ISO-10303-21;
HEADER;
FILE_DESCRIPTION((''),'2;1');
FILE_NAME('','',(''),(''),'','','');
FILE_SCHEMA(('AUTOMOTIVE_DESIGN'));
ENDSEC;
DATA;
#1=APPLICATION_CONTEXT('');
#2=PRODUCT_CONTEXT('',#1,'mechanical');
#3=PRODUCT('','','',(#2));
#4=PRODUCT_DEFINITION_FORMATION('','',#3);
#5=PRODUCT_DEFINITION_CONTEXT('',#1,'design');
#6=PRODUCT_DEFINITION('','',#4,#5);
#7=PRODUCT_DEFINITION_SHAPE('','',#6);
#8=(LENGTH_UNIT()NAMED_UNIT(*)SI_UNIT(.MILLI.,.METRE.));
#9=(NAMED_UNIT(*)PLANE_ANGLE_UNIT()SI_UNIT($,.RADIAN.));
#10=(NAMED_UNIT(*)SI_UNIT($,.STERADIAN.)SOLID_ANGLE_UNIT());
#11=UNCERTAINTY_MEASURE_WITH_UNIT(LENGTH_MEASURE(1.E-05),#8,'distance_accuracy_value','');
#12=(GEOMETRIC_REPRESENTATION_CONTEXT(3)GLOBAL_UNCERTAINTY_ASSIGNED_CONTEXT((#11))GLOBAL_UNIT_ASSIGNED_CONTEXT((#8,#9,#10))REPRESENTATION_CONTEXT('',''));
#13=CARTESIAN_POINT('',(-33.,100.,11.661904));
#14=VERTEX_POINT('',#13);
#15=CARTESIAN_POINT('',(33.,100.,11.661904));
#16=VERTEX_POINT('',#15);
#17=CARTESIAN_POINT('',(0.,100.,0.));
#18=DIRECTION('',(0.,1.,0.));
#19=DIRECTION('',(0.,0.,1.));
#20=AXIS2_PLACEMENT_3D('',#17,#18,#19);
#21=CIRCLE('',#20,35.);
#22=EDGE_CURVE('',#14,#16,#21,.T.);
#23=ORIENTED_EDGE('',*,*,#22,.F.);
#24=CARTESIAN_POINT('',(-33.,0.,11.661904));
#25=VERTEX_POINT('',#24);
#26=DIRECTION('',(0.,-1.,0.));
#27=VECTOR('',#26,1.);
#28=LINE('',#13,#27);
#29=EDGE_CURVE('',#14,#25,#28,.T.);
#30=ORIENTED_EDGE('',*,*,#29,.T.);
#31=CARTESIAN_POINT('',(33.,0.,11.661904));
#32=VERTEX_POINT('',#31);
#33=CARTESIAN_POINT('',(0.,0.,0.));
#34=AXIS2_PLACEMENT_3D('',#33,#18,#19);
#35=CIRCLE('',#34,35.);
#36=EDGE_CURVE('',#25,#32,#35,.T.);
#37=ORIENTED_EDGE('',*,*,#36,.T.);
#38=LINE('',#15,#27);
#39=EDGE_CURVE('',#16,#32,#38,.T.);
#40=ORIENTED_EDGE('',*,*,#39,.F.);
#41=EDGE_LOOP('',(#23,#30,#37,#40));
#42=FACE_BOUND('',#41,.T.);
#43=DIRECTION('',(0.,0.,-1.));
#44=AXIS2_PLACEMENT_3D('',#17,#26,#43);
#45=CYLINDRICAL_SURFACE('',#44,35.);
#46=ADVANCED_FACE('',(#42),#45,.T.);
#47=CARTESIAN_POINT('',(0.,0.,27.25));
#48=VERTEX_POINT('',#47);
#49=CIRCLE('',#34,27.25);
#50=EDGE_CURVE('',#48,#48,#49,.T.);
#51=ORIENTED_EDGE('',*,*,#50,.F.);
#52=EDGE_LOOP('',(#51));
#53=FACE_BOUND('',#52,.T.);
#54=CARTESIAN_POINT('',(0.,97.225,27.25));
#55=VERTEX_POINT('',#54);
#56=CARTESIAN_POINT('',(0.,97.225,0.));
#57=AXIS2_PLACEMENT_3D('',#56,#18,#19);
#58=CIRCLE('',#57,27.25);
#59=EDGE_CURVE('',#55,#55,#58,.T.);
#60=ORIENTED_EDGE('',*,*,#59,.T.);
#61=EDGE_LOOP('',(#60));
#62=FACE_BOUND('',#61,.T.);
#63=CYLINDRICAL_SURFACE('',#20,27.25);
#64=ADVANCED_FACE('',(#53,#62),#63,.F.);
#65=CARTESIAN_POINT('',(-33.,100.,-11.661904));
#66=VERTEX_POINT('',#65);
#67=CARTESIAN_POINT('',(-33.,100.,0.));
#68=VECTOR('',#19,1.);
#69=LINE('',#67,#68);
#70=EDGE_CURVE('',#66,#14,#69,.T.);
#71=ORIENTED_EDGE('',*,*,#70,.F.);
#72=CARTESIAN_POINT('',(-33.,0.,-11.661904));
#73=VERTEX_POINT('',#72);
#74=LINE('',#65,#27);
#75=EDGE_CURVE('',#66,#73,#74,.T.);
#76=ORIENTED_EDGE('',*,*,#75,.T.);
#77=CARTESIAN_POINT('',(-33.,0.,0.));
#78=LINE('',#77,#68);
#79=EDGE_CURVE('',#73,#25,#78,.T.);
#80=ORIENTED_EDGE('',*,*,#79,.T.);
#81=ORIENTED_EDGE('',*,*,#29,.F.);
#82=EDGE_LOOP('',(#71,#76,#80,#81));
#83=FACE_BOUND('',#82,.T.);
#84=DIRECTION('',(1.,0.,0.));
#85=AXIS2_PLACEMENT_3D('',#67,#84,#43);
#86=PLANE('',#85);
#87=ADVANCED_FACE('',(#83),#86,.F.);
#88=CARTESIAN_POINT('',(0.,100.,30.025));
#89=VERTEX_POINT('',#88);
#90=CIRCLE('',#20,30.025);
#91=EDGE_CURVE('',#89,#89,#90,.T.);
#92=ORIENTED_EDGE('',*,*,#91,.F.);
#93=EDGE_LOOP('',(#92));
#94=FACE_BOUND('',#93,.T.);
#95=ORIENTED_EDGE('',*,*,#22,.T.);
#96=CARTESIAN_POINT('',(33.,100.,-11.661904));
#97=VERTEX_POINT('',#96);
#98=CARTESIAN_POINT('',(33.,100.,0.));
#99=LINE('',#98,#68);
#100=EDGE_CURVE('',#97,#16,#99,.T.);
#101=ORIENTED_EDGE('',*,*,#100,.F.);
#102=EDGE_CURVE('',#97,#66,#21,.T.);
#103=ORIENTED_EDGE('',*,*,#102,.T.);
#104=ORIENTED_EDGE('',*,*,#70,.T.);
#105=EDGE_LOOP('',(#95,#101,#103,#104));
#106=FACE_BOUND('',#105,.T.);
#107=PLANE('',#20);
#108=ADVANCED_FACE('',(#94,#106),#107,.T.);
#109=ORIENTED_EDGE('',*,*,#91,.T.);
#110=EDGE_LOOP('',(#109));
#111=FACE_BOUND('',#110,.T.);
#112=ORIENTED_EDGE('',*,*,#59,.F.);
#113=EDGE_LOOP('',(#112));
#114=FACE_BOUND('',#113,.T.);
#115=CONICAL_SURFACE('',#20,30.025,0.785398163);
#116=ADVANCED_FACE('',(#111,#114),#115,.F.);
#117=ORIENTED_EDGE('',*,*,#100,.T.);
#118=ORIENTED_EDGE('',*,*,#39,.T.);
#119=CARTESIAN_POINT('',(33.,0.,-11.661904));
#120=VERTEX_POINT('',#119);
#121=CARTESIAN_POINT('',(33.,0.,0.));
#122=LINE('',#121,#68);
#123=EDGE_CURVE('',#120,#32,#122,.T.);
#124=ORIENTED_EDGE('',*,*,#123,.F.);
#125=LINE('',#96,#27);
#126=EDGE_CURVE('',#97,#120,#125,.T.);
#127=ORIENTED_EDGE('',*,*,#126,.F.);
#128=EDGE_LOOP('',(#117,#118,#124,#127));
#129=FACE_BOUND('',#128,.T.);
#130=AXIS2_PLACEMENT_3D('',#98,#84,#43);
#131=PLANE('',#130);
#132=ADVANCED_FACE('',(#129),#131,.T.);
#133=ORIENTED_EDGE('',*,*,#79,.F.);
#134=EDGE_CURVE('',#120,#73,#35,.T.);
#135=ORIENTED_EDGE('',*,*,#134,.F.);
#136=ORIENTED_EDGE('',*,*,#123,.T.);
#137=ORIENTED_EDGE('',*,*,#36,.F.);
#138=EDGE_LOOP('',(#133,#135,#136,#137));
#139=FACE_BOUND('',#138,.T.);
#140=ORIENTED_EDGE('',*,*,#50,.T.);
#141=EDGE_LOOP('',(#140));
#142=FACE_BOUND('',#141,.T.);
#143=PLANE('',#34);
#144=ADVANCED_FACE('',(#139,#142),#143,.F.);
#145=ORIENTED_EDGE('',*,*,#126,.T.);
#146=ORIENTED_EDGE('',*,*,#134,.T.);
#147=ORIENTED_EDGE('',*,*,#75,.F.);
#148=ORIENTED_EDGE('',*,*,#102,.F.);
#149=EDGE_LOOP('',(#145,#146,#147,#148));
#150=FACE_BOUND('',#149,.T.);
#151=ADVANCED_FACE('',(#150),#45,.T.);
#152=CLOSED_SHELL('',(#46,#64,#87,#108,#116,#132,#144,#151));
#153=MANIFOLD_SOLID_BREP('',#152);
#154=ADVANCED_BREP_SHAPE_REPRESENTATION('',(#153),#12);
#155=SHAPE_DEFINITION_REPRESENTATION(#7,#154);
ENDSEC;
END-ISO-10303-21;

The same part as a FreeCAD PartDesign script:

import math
import FreeCAD as App
import Part
import Sketcher

doc = App.newDocument("Part")
body = doc.addObject("PartDesign::Body", "Body")

sketch1 = body.newObject("Sketcher::SketchObject", "Sketch")
sketch1.AttachmentSupport = (doc.getObject("XZ_Plane"), [""])
sketch1.MapMode = "FlatFace"
sketch1.addGeometry(Part.ArcOfCircle(Part.Circle(App.Vector(0, 0, 0), App.Vector(0, 0, 1), 35), math.radians(-160.537049), math.radians(-19.462951)), False)
sketch1.addGeometry(Part.LineSegment(App.Vector(-33, -11.661904, 0), App.Vector(-33, 11.661904, 0)), False)
sketch1.addGeometry(Part.ArcOfCircle(Part.Circle(App.Vector(0, 0, 0), App.Vector(0, 0, 1), 35), math.radians(19.462951), math.radians(160.537049)), False)
sketch1.addGeometry(Part.LineSegment(App.Vector(33, 11.661904, 0), App.Vector(33, -11.661904, 0)), False)
sketch1.addConstraint(Sketcher.Constraint("Coincident", 0, 1, 1, 1))
sketch1.addConstraint(Sketcher.Constraint("Coincident", 1, 2, 2, 2))
sketch1.addConstraint(Sketcher.Constraint("Coincident", 2, 1, 3, 1))
sketch1.addConstraint(Sketcher.Constraint("Coincident", 3, 2, 0, 2))
sketch1.addConstraint(Sketcher.Constraint("Vertical", 1))
sketch1.addConstraint(Sketcher.Constraint("Vertical", 3))
sketch1.addConstraint(Sketcher.Constraint("Coincident", 0, 3, -1, 1))
sketch1.addConstraint(Sketcher.Constraint("Coincident", 2, 3, -1, 1))
sketch1.addConstraint(Sketcher.Constraint("Equal", 0, 2))
sketch1.addConstraint(Sketcher.Constraint("Horizontal", 1, 2, 2, 1))
sketch1.addConstraint(Sketcher.Constraint("Radius", 0, 35.0))
sketch1.addConstraint(Sketcher.Constraint("DistanceX", 0, 1, -1, 1, 33.0))
pad1 = body.newObject("PartDesign::Pad", "Pad")
pad1.Profile = sketch1
pad1.Length = 100
pad1.Reversed = True

sketch2 = body.newObject("Sketcher::SketchObject", "Sketch001")
sketch2.AttachmentSupport = (doc.getObject("XZ_Plane"), [""])
sketch2.MapMode = "FlatFace"
sketch2.AttachmentOffset = App.Placement(App.Vector(0, 0, -100), App.Rotation())
sketch2.addGeometry(Part.Circle(App.Vector(0, 0, 0), App.Vector(0, 0, 1), 27.25), False)
sketch2.addConstraint(Sketcher.Constraint("Coincident", 0, 3, -1, 1))
sketch2.addConstraint(Sketcher.Constraint("Diameter", 0, 54.5))
doc.recompute()
hole = body.newObject("PartDesign::Hole", "Hole")
hole.Profile = sketch2
hole.ThreadType = "None"
hole.Diameter = 54.5
hole.DepthType = "ThroughAll"
hole.HoleCutType = "Countersink"
hole.HoleCutDiameter = 60.05
hole.HoleCutCountersinkAngle = 90
hole.Reversed = True

doc.recompute()
